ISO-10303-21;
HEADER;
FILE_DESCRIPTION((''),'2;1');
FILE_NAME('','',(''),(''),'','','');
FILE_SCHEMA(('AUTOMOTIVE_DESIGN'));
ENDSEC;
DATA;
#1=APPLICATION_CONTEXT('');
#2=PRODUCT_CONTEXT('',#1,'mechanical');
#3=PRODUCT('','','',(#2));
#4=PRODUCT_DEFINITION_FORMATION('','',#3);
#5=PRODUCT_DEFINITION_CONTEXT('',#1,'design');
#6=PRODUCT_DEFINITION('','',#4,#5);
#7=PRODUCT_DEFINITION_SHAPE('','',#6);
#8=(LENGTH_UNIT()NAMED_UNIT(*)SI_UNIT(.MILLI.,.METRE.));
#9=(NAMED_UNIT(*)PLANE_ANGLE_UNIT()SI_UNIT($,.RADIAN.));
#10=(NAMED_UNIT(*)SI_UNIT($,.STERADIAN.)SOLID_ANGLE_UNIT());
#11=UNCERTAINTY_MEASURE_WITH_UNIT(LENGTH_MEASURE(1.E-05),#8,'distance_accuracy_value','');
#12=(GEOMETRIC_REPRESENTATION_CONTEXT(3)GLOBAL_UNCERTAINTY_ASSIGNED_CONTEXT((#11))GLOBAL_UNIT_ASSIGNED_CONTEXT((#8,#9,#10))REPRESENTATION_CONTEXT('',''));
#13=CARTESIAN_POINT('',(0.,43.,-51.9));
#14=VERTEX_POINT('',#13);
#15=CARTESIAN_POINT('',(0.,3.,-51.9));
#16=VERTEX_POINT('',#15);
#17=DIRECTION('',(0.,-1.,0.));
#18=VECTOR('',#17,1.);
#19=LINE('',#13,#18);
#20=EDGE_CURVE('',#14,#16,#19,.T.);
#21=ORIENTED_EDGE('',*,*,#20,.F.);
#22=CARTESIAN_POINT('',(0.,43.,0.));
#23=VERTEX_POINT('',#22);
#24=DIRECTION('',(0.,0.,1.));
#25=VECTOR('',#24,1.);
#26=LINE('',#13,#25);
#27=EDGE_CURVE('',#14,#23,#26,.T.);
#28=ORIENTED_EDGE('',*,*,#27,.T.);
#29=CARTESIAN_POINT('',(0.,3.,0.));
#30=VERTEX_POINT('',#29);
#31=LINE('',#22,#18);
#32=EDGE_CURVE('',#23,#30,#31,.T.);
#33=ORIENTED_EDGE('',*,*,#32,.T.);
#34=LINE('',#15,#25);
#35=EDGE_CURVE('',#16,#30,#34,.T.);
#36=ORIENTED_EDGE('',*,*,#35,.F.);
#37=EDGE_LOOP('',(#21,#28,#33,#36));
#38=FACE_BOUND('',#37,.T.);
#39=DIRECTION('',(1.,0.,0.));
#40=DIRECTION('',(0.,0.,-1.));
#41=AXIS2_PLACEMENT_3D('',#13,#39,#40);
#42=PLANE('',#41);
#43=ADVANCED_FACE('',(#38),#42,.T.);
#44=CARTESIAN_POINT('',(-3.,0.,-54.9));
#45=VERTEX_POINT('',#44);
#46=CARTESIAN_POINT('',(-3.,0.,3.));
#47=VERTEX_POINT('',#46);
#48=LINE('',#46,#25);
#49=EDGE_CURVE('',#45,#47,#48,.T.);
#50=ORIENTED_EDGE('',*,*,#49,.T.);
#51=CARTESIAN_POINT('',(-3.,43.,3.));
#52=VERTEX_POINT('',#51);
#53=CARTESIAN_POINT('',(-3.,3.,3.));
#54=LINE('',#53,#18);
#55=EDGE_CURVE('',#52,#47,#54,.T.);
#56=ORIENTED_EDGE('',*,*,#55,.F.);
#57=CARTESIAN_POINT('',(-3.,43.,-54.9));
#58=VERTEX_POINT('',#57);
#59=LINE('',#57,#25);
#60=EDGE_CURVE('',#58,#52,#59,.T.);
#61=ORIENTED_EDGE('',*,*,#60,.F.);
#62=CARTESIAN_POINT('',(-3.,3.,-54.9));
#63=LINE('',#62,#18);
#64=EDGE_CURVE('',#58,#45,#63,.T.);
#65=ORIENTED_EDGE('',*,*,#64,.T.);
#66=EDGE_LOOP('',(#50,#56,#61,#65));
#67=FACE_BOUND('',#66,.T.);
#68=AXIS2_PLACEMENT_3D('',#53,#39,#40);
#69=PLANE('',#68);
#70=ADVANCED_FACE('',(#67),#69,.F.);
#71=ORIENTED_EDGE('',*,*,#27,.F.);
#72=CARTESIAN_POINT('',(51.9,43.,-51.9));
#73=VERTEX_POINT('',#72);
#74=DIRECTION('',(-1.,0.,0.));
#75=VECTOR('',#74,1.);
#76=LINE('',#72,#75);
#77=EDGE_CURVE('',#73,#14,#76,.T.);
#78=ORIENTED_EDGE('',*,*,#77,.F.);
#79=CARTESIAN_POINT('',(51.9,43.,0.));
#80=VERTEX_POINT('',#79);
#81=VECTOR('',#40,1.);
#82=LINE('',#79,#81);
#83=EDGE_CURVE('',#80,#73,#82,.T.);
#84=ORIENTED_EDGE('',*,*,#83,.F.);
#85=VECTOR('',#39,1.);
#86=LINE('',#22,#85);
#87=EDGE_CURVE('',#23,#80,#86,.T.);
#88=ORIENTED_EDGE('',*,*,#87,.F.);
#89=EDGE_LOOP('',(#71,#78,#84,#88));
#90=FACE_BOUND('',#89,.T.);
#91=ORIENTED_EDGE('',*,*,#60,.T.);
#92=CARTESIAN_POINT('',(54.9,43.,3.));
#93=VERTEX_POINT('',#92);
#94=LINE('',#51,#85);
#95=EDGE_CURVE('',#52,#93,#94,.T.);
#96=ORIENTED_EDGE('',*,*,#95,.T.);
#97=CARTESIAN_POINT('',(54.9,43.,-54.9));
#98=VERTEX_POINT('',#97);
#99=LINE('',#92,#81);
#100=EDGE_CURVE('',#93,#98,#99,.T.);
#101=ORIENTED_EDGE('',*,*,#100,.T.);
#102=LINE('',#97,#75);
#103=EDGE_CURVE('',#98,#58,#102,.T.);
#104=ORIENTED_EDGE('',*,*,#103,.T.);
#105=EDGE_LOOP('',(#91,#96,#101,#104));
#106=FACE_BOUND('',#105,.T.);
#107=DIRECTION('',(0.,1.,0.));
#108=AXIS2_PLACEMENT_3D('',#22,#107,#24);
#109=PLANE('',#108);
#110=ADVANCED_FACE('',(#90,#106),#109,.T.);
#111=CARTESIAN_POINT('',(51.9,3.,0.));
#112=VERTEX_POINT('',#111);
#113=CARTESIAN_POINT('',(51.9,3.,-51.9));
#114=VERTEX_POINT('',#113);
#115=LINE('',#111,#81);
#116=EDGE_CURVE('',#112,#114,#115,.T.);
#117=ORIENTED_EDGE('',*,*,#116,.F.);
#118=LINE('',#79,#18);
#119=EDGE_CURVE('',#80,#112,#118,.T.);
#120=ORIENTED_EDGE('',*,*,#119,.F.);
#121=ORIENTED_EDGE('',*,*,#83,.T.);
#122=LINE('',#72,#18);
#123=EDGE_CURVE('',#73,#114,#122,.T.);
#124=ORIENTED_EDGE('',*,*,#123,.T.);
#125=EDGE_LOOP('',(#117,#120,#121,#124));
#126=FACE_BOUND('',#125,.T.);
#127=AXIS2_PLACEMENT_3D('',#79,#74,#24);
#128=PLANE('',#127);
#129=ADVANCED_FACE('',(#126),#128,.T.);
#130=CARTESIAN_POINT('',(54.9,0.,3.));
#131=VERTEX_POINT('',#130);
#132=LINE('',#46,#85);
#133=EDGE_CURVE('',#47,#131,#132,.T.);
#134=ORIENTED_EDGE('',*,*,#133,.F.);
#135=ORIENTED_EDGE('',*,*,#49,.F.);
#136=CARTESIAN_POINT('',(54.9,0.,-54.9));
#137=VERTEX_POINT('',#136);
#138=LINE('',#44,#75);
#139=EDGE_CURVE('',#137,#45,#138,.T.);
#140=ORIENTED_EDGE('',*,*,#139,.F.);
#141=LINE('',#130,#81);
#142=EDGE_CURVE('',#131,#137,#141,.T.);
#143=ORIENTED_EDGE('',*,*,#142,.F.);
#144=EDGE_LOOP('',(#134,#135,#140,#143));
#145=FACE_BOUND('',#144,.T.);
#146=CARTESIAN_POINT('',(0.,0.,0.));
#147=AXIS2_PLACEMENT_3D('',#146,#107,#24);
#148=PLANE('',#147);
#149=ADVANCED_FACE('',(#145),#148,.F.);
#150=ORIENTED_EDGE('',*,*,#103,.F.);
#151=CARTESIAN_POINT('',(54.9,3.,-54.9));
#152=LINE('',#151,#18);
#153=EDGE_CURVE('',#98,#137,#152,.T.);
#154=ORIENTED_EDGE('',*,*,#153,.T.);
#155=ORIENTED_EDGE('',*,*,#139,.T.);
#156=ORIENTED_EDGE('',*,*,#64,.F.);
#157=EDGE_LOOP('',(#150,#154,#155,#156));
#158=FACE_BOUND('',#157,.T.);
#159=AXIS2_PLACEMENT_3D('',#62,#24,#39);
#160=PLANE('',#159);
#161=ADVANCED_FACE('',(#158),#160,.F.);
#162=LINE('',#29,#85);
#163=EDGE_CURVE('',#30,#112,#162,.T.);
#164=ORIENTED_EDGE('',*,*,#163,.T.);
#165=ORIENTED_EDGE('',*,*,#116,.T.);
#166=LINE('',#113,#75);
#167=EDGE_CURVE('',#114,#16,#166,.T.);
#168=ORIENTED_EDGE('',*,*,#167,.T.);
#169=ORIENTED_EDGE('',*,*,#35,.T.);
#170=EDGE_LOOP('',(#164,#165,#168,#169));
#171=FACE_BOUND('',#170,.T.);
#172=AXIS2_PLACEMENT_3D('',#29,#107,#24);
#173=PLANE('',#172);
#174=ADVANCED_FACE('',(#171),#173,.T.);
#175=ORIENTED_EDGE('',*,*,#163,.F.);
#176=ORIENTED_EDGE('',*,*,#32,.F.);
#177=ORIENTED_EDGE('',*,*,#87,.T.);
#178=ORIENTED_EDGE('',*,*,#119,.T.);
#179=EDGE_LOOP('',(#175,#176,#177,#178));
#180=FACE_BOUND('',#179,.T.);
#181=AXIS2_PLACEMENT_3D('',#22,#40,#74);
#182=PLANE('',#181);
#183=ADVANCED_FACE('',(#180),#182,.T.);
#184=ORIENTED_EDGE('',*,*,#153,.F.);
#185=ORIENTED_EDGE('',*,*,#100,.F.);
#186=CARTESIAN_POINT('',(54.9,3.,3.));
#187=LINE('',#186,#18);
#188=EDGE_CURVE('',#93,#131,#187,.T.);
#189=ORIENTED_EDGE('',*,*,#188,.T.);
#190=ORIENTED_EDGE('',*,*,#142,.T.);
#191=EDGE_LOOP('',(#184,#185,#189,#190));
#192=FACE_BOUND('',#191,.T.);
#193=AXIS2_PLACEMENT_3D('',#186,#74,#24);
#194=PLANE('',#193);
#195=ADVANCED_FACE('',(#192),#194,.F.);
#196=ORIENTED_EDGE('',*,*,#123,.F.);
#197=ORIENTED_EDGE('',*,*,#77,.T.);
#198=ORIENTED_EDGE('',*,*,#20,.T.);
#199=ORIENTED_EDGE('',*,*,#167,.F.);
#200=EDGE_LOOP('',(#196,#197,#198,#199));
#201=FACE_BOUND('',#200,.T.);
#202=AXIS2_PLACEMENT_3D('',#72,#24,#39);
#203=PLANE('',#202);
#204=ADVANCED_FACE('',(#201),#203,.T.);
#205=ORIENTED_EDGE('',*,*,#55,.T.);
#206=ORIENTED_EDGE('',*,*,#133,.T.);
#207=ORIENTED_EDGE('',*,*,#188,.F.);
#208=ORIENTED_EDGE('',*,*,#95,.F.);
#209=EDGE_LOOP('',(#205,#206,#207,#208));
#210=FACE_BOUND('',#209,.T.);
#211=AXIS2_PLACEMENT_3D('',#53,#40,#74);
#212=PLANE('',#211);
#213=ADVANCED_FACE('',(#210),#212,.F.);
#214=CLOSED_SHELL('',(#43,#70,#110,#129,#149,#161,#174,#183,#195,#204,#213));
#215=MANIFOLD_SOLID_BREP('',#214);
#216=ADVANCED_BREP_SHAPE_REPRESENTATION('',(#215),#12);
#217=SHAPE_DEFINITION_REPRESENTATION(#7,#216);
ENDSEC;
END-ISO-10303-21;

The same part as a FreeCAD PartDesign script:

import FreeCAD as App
import Part
import Sketcher

doc = App.newDocument("Part")
body = doc.addObject("PartDesign::Body", "Body")

sketch1 = body.newObject("Sketcher::SketchObject", "Sketch")
sketch1.AttachmentSupport = (doc.getObject("XZ_Plane"), [""])
sketch1.MapMode = "FlatFace"
sketch1.addGeometry([
    Part.LineSegment(App.Vector(-3, -55, 0), App.Vector(-3, 3, 0)),
    Part.LineSegment(App.Vector(-3, 3, 0), App.Vector(55, 3, 0)),
    Part.LineSegment(App.Vector(55, 3, 0), App.Vector(55, -55, 0)),
    Part.LineSegment(App.Vector(55, -55, 0), App.Vector(-3, -55, 0)),
], False)
sketch1.addConstraint([
    Sketcher.Constraint("Coincident", 0, 2, 1, 1),
    Sketcher.Constraint("Coincident", 1, 2, 2, 1),
    Sketcher.Constraint("Coincident", 2, 2, 3, 1),
    Sketcher.Constraint("Coincident", 3, 2, 0, 1),
    Sketcher.Constraint("Vertical", 0),
    Sketcher.Constraint("Horizontal", 1),
    Sketcher.Constraint("Vertical", 2),
    Sketcher.Constraint("Horizontal", 3),
    Sketcher.Constraint("Equal", 3, 0),
    Sketcher.Constraint("DistanceX", 1, 1, 1, 2, 57.9),
    Sketcher.Constraint("DistanceX", 0, 2, -1, 1, 3.0),
    Sketcher.Constraint("DistanceY", -1, 1, 0, 2, 3.0),
])
pad1 = body.newObject("PartDesign::Pad", "Pad")
pad1.Profile = sketch1
pad1.Length = 3
pad1.Reversed = True

sketch2 = body.newObject("Sketcher::SketchObject", "Sketch001")
sketch2.AttachmentSupport = (doc.getObject("XZ_Plane"), [""])
sketch2.MapMode = "FlatFace"
sketch2.AttachmentOffset = App.Placement(App.Vector(0, 0, -3), App.Rotation())
sketch2.addGeometry([
    Part.LineSegment(App.Vector(-3, -55, 0), App.Vector(-3, 3, 0)),
    Part.LineSegment(App.Vector(-3, 3, 0), App.Vector(55, 3, 0)),
    Part.LineSegment(App.Vector(55, 3, 0), App.Vector(55, -55, 0)),
    Part.LineSegment(App.Vector(55, -55, 0), App.Vector(-3, -55, 0)),
    Part.LineSegment(App.Vector(52, 0, 0), App.Vector(0, 0, 0)),
    Part.LineSegment(App.Vector(0, 0, 0), App.Vector(0, -52, 0)),
    Part.LineSegment(App.Vector(0, -52, 0), App.Vector(52, -52, 0)),
    Part.LineSegment(App.Vector(52, -52, 0), App.Vector(52, 0, 0)),
], False)
sketch2.addConstraint([
    Sketcher.Constraint("Coincident", 0, 2, 1, 1),
    Sketcher.Constraint("Coincident", 1, 2, 2, 1),
    Sketcher.Constraint("Coincident", 2, 2, 3, 1),
    Sketcher.Constraint("Coincident", 3, 2, 0, 1),
    Sketcher.Constraint("Coincident", 4, 2, 5, 1),
    Sketcher.Constraint("Coincident", 5, 2, 6, 1),
    Sketcher.Constraint("Coincident", 6, 2, 7, 1),
    Sketcher.Constraint("Coincident", 7, 2, 4, 1),
    Sketcher.Constraint("Vertical", 0),
    Sketcher.Constraint("Horizontal", 1),
    Sketcher.Constraint("Vertical", 2),
    Sketcher.Constraint("Horizontal", 3),
    Sketcher.Constraint("Horizontal", 4),
    Sketcher.Constraint("Vertical", 5),
    Sketcher.Constraint("Horizontal", 6),
    Sketcher.Constraint("Vertical", 7),
    Sketcher.Constraint("Coincident", 4, 2, -1, 1),
    Sketcher.Constraint("Equal", 3, 0),
    Sketcher.Constraint("Equal", 6, 5),
    Sketcher.Constraint("DistanceX", 1, 1, 1, 2, 57.9),
    Sketcher.Constraint("DistanceX", 4, 2, 4, 1, 51.9),
    Sketcher.Constraint("DistanceX", 0, 2, -1, 1, 3.0),
    Sketcher.Constraint("DistanceY", -1, 1, 0, 2, 3.0),
])
pad2 = body.newObject("PartDesign::Pad", "Pad001")
pad2.Profile = sketch2
pad2.Length = 40
pad2.Reversed = True

doc.recompute()
